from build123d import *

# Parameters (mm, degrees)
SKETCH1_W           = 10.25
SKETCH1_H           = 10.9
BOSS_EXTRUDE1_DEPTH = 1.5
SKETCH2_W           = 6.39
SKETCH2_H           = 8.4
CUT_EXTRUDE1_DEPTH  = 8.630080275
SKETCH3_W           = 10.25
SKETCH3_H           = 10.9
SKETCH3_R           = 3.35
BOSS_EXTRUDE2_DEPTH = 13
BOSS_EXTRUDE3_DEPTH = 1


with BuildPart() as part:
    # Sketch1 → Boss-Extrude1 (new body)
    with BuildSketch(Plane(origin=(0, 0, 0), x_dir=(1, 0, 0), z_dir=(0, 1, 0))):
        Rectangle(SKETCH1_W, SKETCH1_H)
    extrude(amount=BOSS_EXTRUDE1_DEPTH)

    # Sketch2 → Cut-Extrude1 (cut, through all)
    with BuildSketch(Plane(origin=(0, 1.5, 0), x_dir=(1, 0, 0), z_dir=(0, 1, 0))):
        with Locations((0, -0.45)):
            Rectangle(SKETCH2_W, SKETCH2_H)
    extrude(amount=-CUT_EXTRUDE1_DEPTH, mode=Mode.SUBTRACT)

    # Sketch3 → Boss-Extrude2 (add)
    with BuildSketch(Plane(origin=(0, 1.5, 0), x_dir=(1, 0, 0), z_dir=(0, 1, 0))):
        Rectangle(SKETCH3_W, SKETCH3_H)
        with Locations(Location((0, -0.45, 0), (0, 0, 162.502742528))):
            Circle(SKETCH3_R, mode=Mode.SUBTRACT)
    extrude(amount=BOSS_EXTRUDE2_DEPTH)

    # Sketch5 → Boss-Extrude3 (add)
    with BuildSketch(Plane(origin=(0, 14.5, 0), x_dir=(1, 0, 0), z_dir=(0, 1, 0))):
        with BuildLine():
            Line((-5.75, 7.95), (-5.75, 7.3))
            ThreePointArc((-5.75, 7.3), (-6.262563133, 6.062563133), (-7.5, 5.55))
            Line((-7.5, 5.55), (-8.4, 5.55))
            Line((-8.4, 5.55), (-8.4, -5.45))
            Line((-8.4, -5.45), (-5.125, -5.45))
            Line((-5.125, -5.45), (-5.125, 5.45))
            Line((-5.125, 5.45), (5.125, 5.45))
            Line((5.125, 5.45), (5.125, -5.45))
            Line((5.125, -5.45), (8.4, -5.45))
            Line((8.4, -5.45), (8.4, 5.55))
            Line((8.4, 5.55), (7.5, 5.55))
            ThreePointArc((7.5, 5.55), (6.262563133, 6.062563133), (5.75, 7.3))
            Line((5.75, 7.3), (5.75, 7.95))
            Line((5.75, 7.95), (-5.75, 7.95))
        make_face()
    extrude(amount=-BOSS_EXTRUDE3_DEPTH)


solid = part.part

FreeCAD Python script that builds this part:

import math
import FreeCAD as App
import Part
import Sketcher
from FreeCAD import Vector
Q = App.Units.Quantity


def add_polygon(sketch, points):
    """Adds a closed chain of lines whose ends are joined by coincident constraints."""
    first, n = sketch.GeometryCount, len(points)
    for a, b in zip(points, points[1:] + points[:1]):
        sketch.addGeometry(Part.LineSegment(App.Vector(*a, 0), App.Vector(*b, 0)), False)
    for i in range(n):
        sketch.addConstraint(Sketcher.Constraint("Coincident", first + i, 2, first + (i + 1) % n, 1))

doc = App.newDocument("Part")
body = doc.addObject("PartDesign::Body", "Body")

# Sketch on XZ plane
sketch1 = body.newObject("Sketcher::SketchObject", "Sketch")
sketch1.AttachmentSupport = (doc.getObject("XZ_Plane"), [""])
sketch1.MapMode = "FlatFace"
add_polygon(sketch1, [(-5, -5), (-5, 5), (5, 5), (5, -5)])  # lines 0-3
sketch1.addConstraint(Sketcher.Constraint("Vertical", 0))
sketch1.addConstraint(Sketcher.Constraint("Horizontal", 1))
sketch1.addConstraint(Sketcher.Constraint("Vertical", 2))
sketch1.addConstraint(Sketcher.Constraint("Horizontal", 3))
sketch1.addConstraint(Sketcher.Constraint("Symmetric", 0, 2, 2, 2, -1, 1))
sketch1.addConstraint(Sketcher.Constraint("DistanceY", 0, 1, 0, 2, Q("10.9 mm")))
sketch1.addConstraint(Sketcher.Constraint("DistanceX", 1, 1, 1, 2, Q("10.25 mm")))
pad1 = body.newObject("PartDesign::Pad", "Pad")
pad1.Profile = sketch1
pad1.Length = 1.5
pad1.Reversed = True

# Sketch on XZ plane
sketch2 = body.newObject("Sketcher::SketchObject", "Sketch001")
sketch2.AttachmentSupport = (doc.getObject("XZ_Plane"), [""])
sketch2.MapMode = "FlatFace"
sketch2.AttachmentOffset = App.Placement(Vector(0, 0, -1.5), App.Rotation())
add_polygon(sketch2, [(-3, -4), (-3, 5), (3, 5), (3, -4)])  # lines 0-3
sketch2.addConstraint(Sketcher.Constraint("Vertical", 0))
sketch2.addConstraint(Sketcher.Constraint("Horizontal", 1))
sketch2.addConstraint(Sketcher.Constraint("Vertical", 2))
sketch2.addConstraint(Sketcher.Constraint("Horizontal", 3))
sketch2.addConstraint(Sketcher.Constraint("DistanceY", 0, 1, 0, 2, Q("8.4 mm")))
sketch2.addConstraint(Sketcher.Constraint("DistanceX", 1, 1, 1, 2, Q("6.39 mm")))
sketch2.addConstraint(Sketcher.Constraint("DistanceY", -1, 1, 0, 2, Q("4.65 mm")))
sketch2.addConstraint(Sketcher.Constraint("DistanceX", 0, 2, -1, 1, Q("3.195 mm")))
pocket1 = body.newObject("PartDesign::Pocket", "Pocket")
pocket1.Profile = sketch2
pocket1.Type = "ThroughAll"
pocket1.Reversed = True

# Sketch on XZ plane
sketch3 = body.newObject("Sketcher::SketchObject", "Sketch002")
sketch3.AttachmentSupport = (doc.getObject("XZ_Plane"), [""])
sketch3.MapMode = "FlatFace"
sketch3.AttachmentOffset = App.Placement(Vector(0, 0, -1.5), App.Rotation())
add_polygon(sketch3, [(-5.1, -5.5), (-5.1, 5.5), (5.1, 5.5), (5.1, -5.5)])  # lines 0-3
sketch3.addGeometry(Part.Circle(Vector(0, 0.5, 0), Vector(0, 0, 1), 3.4), False)  # 4
sketch3.addConstraint(Sketcher.Constraint("Vertical", 0))
sketch3.addConstraint(Sketcher.Constraint("Horizontal", 1))
sketch3.addConstraint(Sketcher.Constraint("Vertical", 2))
sketch3.addConstraint(Sketcher.Constraint("Horizontal", 3))
sketch3.addConstraint(Sketcher.Constraint("Symmetric", 0, 2, 2, 2, -1, 1))
sketch3.addConstraint(Sketcher.Constraint("PointOnObject", 4, 3, -2))
sketch3.addConstraint(Sketcher.Constraint("Diameter", 4, Q("6.7 mm")))
sketch3.addConstraint(Sketcher.Constraint("DistanceY", 0, 1, 0, 2, Q("10.9 mm")))
sketch3.addConstraint(Sketcher.Constraint("DistanceY", 4, 3, 0, 2, Q("5 mm")))
sketch3.addConstraint(Sketcher.Constraint("DistanceX", 1, 1, 1, 2, Q("10.25 mm")))
pad2 = body.newObject("PartDesign::Pad", "Pad001")
pad2.Profile = sketch3
pad2.Length = 13
pad2.Reversed = True

# Sketch on XZ plane
sketch4 = body.newObject("Sketcher::SketchObject", "Sketch003")
sketch4.AttachmentSupport = (doc.getObject("XZ_Plane"), [""])
sketch4.MapMode = "FlatFace"
sketch4.AttachmentOffset = App.Placement(Vector(0, 0, -14.5), App.Rotation())
sketch4.addGeometry(Part.LineSegment(Vector(-5.8, -8, 0), Vector(-5.8, -7.3, 0)), False)
sketch4.addGeometry(Part.ArcOfCircle(Part.Circle(Vector(-7.5, -7.3, 0), Vector(0, 0, 1), 1.8), math.radians(0), math.radians(90)), False)
sketch4.addGeometry(Part.LineSegment(Vector(-7.5, -5.5, 0), Vector(-8.4, -5.5, 0)), False)
sketch4.addGeometry(Part.LineSegment(Vector(-8.4, -5.5, 0), Vector(-8.4, 5.5, 0)), False)
sketch4.addGeometry(Part.LineSegment(Vector(-8.4, 5.5, 0), Vector(-5.1, 5.5, 0)), False)
sketch4.addGeometry(Part.LineSegment(Vector(-5.1, 5.5, 0), Vector(-5.1, -5.5, 0)), False)
sketch4.addGeometry(Part.LineSegment(Vector(-5.1, -5.5, 0), Vector(5.1, -5.5, 0)), False)
sketch4.addGeometry(Part.LineSegment(Vector(5.1, -5.5, 0), Vector(5.1, 5.5, 0)), False)
sketch4.addGeometry(Part.LineSegment(Vector(5.1, 5.5, 0), Vector(8.4, 5.5, 0)), False)
sketch4.addGeometry(Part.LineSegment(Vector(8.4, 5.5, 0), Vector(8.4, -5.5, 0)), False)
sketch4.addGeometry(Part.LineSegment(Vector(8.4, -5.5, 0), Vector(7.5, -5.5, 0)), False)
sketch4.addGeometry(Part.ArcOfCircle(Part.Circle(Vector(7.5, -7.3, 0), Vector(0, 0, 1), 1.8), math.radians(90), math.radians(180)), False)
sketch4.addGeometry(Part.LineSegment(Vector(5.8, -7.3, 0), Vector(5.8, -8, 0)), False)
sketch4.addGeometry(Part.LineSegment(Vector(5.8, -8, 0), Vector(-5.8, -8, 0)), False)
sketch4.addConstraint(Sketcher.Constraint("Tangent", 0, 2, 1, 1))
sketch4.addConstraint(Sketcher.Constraint("Tangent", 1, 2, 2, 1))
sketch4.addConstraint(Sketcher.Constraint("Coincident", 2, 2, 3, 1))
sketch4.addConstraint(Sketcher.Constraint("Coincident", 3, 2, 4, 1))
sketch4.addConstraint(Sketcher.Constraint("Coincident", 4, 2, 5, 1))
sketch4.addConstraint(Sketcher.Constraint("Coincident", 5, 2, 6, 1))
sketch4.addConstraint(Sketcher.Constraint("Coincident", 6, 2, 7, 1))
sketch4.addConstraint(Sketcher.Constraint("Coincident", 7, 2, 8, 1))
sketch4.addConstraint(Sketcher.Constraint("Coincident", 8, 2, 9, 1))
sketch4.addConstraint(Sketcher.Constraint("Coincident", 9, 2, 10, 1))
sketch4.addConstraint(Sketcher.Constraint("Tangent", 10, 2, 11, 1))
sketch4.addConstraint(Sketcher.Constraint("Tangent", 11, 2, 12, 1))
sketch4.addConstraint(Sketcher.Constraint("Coincident", 12, 2, 13, 1))
sketch4.addConstraint(Sketcher.Constraint("Coincident", 13, 2, 0, 1))
sketch4.addConstraint(Sketcher.Constraint("Vertical", 0))
sketch4.addConstraint(Sketcher.Constraint("Horizontal", 2))
sketch4.addConstraint(Sketcher.Constraint("Vertical", 3))
sketch4.addConstraint(Sketcher.Constraint("Horizontal", 4))
sketch4.addConstraint(Sketcher.Constraint("Vertical", 5))
sketch4.addConstraint(Sketcher.Constraint("Horizontal", 6))
sketch4.addConstraint(Sketcher.Constraint("Vertical", 7))
sketch4.addConstraint(Sketcher.Constraint("Horizontal", 8))
sketch4.addConstraint(Sketcher.Constraint("Vertical", 9))
sketch4.addConstraint(Sketcher.Constraint("Horizontal", 10))
sketch4.addConstraint(Sketcher.Constraint("Vertical", 12))
sketch4.addConstraint(Sketcher.Constraint("Horizontal", 13))
sketch4.addConstraint(Sketcher.Constraint("Equal", 1, 11))
sketch4.addConstraint(Sketcher.Constraint("Symmetric", 4, 2, 6, 2, -1, 1))
sketch4.addConstraint(Sketcher.Constraint("Symmetric", 1, 3, 11, 3, -2))
sketch4.addConstraint(Sketcher.Constraint("Symmetric", 3, 2, 8, 2, -2))
sketch4.addConstraint(Sketcher.Constraint("DistanceY", 3, 1, 3, 2, Q("11 mm")))
sketch4.addConstraint(Sketcher.Constraint("Radius", 1, Q("1.75 mm")))
sketch4.addConstraint(Sketcher.Constraint("DistanceX", 2, 2, 2, 1, Q("0.9 mm")))
sketch4.addConstraint(Sketcher.Constraint("DistanceX", 13, 2, 13, 1, Q("11.5 mm")))
sketch4.addConstraint(Sketcher.Constraint("DistanceY", 5, 2, 5, 1, Q("10.9 mm")))
sketch4.addConstraint(Sketcher.Constraint("DistanceX", 6, 1, 6, 2, Q("10.25 mm")))
sketch4.addConstraint(Sketcher.Constraint("DistanceY", 0, 1, 0, 2, Q("0.65 mm")))
pad3 = body.newObject("PartDesign::Pad", "Pad002")
pad3.Profile = sketch4
pad3.Length = 1

doc.recompute()
